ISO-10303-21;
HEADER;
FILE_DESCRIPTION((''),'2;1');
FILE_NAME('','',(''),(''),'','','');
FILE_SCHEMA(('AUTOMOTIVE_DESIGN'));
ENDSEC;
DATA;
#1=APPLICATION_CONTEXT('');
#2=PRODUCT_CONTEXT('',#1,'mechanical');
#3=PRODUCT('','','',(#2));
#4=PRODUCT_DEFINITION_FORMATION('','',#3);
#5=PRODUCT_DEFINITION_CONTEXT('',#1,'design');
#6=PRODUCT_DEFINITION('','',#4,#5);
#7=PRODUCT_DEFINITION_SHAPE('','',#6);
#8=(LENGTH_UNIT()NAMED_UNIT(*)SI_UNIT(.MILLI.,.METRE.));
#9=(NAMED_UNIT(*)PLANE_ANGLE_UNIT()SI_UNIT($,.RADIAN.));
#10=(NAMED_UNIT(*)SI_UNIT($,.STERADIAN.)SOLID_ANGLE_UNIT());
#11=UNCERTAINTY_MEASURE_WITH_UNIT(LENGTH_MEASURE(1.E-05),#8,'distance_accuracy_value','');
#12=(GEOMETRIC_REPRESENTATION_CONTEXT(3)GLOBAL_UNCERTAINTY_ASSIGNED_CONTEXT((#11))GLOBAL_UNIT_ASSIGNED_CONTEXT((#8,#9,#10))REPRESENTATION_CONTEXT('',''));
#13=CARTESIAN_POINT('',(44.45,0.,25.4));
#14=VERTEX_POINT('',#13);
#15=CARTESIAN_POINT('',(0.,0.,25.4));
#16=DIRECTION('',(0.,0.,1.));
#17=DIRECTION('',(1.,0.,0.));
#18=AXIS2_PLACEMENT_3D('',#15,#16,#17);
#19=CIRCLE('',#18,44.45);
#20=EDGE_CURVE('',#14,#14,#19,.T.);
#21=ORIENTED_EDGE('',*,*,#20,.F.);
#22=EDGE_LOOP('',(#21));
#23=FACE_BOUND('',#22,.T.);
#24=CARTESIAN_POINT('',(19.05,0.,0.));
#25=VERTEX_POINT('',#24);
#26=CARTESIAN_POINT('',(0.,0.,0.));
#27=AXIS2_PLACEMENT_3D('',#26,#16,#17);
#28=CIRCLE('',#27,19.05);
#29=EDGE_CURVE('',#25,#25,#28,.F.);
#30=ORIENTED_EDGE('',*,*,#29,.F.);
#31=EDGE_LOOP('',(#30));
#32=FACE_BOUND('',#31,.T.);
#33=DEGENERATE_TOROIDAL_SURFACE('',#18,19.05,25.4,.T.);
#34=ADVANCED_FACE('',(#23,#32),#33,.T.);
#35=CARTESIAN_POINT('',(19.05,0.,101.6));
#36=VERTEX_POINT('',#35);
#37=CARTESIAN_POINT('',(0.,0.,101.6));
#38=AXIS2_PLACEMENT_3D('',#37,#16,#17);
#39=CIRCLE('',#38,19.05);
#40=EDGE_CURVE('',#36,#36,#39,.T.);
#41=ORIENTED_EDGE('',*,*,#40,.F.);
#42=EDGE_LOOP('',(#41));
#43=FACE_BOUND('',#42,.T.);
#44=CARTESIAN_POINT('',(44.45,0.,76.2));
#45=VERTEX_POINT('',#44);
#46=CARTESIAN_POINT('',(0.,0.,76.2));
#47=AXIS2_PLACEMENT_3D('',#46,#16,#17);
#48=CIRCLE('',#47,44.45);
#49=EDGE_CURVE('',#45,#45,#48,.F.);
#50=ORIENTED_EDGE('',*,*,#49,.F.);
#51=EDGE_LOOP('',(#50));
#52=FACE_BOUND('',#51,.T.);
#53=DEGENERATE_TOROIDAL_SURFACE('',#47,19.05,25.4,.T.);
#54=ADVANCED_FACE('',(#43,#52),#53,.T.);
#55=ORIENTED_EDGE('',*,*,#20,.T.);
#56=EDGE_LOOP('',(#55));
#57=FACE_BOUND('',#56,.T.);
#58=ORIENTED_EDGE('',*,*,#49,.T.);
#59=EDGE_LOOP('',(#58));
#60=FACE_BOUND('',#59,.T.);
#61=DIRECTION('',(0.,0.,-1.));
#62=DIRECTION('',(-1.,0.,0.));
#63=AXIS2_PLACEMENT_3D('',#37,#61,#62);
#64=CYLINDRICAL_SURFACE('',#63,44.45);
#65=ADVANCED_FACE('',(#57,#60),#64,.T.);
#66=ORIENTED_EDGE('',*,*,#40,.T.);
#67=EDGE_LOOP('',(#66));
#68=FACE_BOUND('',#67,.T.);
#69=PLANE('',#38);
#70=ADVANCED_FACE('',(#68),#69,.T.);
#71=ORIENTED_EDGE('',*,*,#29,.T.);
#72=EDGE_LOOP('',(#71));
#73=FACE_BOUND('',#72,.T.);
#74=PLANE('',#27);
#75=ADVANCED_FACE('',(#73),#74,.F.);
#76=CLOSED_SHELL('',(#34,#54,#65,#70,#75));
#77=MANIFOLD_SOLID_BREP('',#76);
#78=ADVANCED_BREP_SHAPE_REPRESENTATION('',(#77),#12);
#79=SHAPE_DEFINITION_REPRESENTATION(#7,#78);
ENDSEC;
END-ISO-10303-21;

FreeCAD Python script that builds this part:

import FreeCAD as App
import Part
import Sketcher
from FreeCAD import Vector
Q = App.Units.Quantity


def edges_at(feature, points):
    """Names of the edges that pass closest to the given points."""
    edges = feature.Shape.Edges
    near = lambda p: min(range(len(edges)), key=lambda i: edges[i].distToShape(Part.Vertex(*p))[0])
    return sorted({f"Edge{near(p) + 1}" for p in points})

doc = App.newDocument("Part")
body = doc.addObject("PartDesign::Body", "Body")

sketch1 = body.newObject("Sketcher::SketchObject", "Sketch")
sketch1.AttachmentSupport = (doc.getObject("XY_Plane"), [""])
sketch1.MapMode = "FlatFace"
sketch1.addGeometry(Part.Circle(Vector(0, 0, 0), Vector(0, 0, 1), 44), False)
sketch1.addConstraint([
    Sketcher.Constraint("Coincident", 0, 3, -1, 1),
    Sketcher.Constraint("Diameter", 0, Q("3.5 in")),
])
pad1 = body.newObject("PartDesign::Pad", "Pad")
pad1.Profile = sketch1
pad1.Length = Q("4 in")
doc.recompute()

fillet = body.newObject("PartDesign::Fillet", "Fillet")
fillet.Base = (pad1, edges_at(pad1, [(-44.45, 0, 0), (-44.45, 0, 101.6)]))
fillet.Radius = Q("1 in")

doc.recompute()
